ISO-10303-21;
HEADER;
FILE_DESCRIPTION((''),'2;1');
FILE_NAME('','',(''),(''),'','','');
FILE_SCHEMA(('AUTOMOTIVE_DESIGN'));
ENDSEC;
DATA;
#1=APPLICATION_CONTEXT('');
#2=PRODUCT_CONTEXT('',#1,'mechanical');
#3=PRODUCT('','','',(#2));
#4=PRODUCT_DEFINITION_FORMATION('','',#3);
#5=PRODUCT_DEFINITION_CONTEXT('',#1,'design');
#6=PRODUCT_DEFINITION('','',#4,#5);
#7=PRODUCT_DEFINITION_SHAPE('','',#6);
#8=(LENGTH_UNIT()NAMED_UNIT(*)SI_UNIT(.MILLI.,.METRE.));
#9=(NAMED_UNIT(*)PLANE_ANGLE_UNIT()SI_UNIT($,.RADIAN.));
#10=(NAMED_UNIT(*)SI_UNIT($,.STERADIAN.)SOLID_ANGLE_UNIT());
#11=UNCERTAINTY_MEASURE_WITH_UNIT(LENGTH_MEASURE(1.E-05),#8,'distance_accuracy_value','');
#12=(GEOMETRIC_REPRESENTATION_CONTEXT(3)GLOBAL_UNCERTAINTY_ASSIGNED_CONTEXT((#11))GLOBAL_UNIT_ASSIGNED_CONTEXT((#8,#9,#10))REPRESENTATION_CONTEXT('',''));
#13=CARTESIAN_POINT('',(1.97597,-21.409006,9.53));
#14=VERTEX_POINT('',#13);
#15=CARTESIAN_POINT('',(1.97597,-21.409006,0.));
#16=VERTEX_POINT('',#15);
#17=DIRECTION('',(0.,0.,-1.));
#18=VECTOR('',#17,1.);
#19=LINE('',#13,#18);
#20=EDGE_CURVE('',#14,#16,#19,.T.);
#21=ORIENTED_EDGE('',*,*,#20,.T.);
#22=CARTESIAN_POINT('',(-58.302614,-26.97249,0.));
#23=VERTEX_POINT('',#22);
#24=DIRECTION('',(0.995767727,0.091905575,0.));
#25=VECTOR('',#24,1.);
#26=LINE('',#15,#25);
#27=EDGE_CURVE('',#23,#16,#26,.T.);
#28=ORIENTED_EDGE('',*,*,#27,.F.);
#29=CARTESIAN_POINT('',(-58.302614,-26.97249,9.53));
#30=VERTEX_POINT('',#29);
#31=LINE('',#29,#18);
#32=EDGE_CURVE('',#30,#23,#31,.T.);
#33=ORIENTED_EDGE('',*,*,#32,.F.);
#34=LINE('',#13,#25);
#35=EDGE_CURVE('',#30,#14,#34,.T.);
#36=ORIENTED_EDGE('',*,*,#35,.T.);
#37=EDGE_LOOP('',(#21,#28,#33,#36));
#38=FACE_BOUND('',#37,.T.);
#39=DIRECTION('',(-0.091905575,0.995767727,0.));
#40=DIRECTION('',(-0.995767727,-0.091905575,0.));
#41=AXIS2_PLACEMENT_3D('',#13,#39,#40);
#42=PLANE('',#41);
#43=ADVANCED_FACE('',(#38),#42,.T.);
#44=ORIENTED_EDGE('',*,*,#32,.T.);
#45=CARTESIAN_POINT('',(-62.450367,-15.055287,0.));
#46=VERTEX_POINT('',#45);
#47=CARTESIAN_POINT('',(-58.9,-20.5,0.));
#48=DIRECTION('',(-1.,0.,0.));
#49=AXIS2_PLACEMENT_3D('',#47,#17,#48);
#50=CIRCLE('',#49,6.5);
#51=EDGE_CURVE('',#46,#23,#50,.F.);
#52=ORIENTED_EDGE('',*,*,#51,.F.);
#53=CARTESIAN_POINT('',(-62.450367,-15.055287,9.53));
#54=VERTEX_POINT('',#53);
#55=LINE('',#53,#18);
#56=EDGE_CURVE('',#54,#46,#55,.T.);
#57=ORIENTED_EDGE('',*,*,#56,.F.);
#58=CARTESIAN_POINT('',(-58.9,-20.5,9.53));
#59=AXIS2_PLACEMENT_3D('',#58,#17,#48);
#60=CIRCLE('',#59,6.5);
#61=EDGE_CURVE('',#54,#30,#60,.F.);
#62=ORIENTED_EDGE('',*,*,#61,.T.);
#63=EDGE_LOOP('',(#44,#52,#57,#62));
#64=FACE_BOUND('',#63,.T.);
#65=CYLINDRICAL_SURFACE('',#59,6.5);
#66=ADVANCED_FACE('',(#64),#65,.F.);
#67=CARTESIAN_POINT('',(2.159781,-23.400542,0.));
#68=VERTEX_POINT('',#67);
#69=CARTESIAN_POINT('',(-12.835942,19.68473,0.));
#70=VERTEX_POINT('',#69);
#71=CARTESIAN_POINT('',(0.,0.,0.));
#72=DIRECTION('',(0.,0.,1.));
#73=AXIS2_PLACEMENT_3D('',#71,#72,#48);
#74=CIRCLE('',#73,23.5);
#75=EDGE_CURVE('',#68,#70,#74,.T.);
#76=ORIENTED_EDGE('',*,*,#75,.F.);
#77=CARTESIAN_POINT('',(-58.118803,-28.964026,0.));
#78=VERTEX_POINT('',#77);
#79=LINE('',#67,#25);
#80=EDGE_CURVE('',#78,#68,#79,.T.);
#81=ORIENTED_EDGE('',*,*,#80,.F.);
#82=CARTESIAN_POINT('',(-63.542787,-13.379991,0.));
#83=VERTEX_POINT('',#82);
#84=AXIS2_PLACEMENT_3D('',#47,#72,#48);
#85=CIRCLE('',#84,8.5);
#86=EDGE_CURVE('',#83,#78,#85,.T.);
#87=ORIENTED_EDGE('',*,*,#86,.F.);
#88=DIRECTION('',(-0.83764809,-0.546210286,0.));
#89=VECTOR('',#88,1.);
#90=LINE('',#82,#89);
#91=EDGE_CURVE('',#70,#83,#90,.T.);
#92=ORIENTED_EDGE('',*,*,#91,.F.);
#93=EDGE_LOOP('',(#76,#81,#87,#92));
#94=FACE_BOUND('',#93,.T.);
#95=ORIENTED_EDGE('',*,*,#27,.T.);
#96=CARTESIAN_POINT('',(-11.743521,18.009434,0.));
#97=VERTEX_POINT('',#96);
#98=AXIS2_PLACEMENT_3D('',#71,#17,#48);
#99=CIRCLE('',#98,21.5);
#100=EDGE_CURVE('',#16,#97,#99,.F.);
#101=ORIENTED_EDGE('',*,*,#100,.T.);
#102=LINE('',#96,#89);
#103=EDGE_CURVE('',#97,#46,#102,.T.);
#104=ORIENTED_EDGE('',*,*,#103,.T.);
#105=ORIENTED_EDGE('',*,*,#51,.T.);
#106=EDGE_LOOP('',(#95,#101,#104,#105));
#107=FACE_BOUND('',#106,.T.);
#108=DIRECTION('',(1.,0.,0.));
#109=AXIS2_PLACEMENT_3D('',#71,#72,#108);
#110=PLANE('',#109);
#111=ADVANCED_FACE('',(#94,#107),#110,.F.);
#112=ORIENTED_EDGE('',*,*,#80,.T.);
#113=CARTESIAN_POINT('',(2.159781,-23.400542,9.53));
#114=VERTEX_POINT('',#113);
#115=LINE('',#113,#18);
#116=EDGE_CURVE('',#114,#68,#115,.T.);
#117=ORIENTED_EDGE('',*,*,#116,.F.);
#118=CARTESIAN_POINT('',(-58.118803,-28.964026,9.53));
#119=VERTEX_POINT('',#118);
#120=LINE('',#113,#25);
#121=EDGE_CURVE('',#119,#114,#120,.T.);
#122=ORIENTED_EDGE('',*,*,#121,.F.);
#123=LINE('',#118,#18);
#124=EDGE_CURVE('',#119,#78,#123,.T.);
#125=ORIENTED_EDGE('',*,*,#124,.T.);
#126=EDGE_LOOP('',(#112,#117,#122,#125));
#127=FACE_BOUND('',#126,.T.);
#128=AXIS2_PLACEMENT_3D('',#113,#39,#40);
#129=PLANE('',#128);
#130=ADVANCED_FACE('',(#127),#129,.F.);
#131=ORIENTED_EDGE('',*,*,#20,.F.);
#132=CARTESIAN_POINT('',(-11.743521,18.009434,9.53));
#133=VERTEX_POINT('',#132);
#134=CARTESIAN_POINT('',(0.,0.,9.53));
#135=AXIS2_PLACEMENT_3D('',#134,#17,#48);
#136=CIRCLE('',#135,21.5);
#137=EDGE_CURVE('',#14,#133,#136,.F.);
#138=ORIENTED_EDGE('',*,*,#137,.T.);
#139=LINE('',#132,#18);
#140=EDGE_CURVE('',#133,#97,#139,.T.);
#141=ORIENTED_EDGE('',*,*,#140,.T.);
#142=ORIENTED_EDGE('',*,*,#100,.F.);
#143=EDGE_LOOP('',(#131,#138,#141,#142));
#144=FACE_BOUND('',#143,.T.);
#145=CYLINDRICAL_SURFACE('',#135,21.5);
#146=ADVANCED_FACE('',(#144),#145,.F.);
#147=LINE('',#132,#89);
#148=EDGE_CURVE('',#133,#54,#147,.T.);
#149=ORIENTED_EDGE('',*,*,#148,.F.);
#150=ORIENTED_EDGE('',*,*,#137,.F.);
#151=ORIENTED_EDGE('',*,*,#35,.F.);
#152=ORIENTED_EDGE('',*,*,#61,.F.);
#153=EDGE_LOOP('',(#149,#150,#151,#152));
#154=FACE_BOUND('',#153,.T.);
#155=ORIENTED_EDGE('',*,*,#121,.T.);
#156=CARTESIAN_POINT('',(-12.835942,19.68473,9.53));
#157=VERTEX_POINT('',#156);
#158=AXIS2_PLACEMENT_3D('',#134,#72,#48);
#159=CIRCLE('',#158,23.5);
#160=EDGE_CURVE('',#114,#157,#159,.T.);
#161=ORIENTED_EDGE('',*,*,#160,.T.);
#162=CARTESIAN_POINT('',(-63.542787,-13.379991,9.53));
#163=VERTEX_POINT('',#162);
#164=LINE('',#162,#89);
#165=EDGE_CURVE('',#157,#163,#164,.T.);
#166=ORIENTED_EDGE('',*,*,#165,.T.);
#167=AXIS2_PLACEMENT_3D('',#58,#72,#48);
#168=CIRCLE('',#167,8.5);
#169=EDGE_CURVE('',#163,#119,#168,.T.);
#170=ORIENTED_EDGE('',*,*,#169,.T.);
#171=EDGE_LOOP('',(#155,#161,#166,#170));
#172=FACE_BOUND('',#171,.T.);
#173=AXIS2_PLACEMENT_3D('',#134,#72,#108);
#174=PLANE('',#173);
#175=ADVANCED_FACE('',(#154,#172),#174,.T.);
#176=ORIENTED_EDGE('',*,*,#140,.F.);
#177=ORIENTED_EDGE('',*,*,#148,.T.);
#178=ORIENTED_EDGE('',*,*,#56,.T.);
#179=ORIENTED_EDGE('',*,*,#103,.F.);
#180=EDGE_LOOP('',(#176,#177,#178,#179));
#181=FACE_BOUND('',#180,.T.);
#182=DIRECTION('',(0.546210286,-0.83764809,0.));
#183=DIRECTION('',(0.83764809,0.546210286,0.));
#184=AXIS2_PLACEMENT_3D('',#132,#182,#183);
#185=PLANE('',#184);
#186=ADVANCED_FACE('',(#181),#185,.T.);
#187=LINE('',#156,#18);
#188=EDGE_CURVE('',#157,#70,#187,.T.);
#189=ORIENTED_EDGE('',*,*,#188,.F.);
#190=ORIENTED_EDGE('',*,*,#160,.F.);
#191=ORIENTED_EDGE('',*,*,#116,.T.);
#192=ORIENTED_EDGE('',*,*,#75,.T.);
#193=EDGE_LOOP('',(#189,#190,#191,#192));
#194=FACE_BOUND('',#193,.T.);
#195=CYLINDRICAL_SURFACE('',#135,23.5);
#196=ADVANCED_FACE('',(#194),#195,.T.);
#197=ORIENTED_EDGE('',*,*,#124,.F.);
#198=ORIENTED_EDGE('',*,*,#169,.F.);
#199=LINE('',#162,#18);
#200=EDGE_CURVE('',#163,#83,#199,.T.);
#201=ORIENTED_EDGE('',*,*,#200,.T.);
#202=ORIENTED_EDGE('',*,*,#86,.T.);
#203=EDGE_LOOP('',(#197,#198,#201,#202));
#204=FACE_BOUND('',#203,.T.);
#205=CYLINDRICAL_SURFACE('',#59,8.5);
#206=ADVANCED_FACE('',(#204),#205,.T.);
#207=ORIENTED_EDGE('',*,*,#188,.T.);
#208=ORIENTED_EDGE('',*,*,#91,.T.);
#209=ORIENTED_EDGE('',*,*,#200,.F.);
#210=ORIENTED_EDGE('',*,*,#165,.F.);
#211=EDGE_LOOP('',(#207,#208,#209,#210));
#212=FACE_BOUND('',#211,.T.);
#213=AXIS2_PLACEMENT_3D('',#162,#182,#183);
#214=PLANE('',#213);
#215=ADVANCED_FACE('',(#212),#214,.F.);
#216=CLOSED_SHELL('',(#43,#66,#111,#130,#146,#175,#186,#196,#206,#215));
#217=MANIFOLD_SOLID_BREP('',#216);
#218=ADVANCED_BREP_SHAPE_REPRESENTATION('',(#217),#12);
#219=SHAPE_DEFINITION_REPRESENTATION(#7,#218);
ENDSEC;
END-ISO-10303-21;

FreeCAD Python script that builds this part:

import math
import FreeCAD as App
import Part
import Sketcher
from FreeCAD import Vector
Q = App.Units.Quantity

doc = App.newDocument("Part")
body = doc.addObject("PartDesign::Body", "Body")

# Sketch on XY plane
sketch1 = doc.addObject("Sketcher::SketchObject", "Sketch")
body.addObject(sketch1)
sketch1.AttachmentSupport = (doc.XY_Plane, [""])
sketch1.MapMode = "FlatFace"
sketch1.addGeometry(Part.LineSegment(Vector(-13, 20, 0), Vector(-64, -13, 0)), False)
sketch1.addGeometry(Part.ArcOfCircle(Part.Circle(Vector(-59, -20, 0), Vector(0, 0, 1), 8), math.radians(123), math.radians(275)), False)
sketch1.addGeometry(Part.LineSegment(Vector(-58, -29, 0), Vector(2, -23, 0)), False)
sketch1.addGeometry(Part.ArcOfCircle(Part.Circle(Vector(0, 0, 0), Vector(0, 0, 1), 24), math.radians(-85), math.radians(123)), False)
sketch1.addGeometry(Part.LineSegment(Vector(-62, -15, 0), Vector(-12, 18, 0)), False)
sketch1.addGeometry(Part.ArcOfCircle(Part.Circle(Vector(0, 0, 0), Vector(0, 0, 1), 22), math.radians(-85), math.radians(123)), False)
sketch1.addGeometry(Part.LineSegment(Vector(2, -21, 0), Vector(-58, -27, 0)), False)
sketch1.addGeometry(Part.ArcOfCircle(Part.Circle(Vector(-59, -20, 0), Vector(0, 0, 1), 6), math.radians(123), math.radians(275)), False)
sketch1.addConstraint(Sketcher.Constraint("Tangent", 0, 2, 1, 1))
sketch1.addConstraint(Sketcher.Constraint("Tangent", 1, 2, 2, 1))
sketch1.addConstraint(Sketcher.Constraint("Tangent", 2, 2, 3, 1))
sketch1.addConstraint(Sketcher.Constraint("Tangent", 3, 2, 0, 1))
sketch1.addConstraint(Sketcher.Constraint("Tangent", 4, 2, 5, 2))
sketch1.addConstraint(Sketcher.Constraint("Tangent", 5, 1, 6, 1))
sketch1.addConstraint(Sketcher.Constraint("Tangent", 6, 2, 7, 2))
sketch1.addConstraint(Sketcher.Constraint("Tangent", 7, 1, 4, 1))
sketch1.addConstraint(Sketcher.Constraint("Coincident", 3, 3, -1, 1))
sketch1.addConstraint(Sketcher.Constraint("Coincident", 5, 3, -1, 1))
sketch1.addConstraint(Sketcher.Constraint("Coincident", 7, 3, 1, 3))
sketch1.addConstraint(Sketcher.Constraint("Parallel", 0, 4))
sketch1.addConstraint(Sketcher.Constraint("Radius", 1, Q("8.5 mm")))
sketch1.addConstraint(Sketcher.Constraint("Radius", 3, Q("23.5 mm")))
sketch1.addConstraint(Sketcher.Constraint("Radius", 5, Q("21.5 mm")))
sketch1.addConstraint(Sketcher.Constraint("DistanceX", 1, 3, -1, 1, Q("58.9 mm")))
sketch1.addConstraint(Sketcher.Constraint("DistanceY", 1, 3, -1, 1, Q("20.5 mm")))
pad1 = doc.addObject("PartDesign::Pad", "Pad")
body.addObject(pad1)
pad1.Profile = sketch1
pad1.Length = 9.53

doc.recompute()
